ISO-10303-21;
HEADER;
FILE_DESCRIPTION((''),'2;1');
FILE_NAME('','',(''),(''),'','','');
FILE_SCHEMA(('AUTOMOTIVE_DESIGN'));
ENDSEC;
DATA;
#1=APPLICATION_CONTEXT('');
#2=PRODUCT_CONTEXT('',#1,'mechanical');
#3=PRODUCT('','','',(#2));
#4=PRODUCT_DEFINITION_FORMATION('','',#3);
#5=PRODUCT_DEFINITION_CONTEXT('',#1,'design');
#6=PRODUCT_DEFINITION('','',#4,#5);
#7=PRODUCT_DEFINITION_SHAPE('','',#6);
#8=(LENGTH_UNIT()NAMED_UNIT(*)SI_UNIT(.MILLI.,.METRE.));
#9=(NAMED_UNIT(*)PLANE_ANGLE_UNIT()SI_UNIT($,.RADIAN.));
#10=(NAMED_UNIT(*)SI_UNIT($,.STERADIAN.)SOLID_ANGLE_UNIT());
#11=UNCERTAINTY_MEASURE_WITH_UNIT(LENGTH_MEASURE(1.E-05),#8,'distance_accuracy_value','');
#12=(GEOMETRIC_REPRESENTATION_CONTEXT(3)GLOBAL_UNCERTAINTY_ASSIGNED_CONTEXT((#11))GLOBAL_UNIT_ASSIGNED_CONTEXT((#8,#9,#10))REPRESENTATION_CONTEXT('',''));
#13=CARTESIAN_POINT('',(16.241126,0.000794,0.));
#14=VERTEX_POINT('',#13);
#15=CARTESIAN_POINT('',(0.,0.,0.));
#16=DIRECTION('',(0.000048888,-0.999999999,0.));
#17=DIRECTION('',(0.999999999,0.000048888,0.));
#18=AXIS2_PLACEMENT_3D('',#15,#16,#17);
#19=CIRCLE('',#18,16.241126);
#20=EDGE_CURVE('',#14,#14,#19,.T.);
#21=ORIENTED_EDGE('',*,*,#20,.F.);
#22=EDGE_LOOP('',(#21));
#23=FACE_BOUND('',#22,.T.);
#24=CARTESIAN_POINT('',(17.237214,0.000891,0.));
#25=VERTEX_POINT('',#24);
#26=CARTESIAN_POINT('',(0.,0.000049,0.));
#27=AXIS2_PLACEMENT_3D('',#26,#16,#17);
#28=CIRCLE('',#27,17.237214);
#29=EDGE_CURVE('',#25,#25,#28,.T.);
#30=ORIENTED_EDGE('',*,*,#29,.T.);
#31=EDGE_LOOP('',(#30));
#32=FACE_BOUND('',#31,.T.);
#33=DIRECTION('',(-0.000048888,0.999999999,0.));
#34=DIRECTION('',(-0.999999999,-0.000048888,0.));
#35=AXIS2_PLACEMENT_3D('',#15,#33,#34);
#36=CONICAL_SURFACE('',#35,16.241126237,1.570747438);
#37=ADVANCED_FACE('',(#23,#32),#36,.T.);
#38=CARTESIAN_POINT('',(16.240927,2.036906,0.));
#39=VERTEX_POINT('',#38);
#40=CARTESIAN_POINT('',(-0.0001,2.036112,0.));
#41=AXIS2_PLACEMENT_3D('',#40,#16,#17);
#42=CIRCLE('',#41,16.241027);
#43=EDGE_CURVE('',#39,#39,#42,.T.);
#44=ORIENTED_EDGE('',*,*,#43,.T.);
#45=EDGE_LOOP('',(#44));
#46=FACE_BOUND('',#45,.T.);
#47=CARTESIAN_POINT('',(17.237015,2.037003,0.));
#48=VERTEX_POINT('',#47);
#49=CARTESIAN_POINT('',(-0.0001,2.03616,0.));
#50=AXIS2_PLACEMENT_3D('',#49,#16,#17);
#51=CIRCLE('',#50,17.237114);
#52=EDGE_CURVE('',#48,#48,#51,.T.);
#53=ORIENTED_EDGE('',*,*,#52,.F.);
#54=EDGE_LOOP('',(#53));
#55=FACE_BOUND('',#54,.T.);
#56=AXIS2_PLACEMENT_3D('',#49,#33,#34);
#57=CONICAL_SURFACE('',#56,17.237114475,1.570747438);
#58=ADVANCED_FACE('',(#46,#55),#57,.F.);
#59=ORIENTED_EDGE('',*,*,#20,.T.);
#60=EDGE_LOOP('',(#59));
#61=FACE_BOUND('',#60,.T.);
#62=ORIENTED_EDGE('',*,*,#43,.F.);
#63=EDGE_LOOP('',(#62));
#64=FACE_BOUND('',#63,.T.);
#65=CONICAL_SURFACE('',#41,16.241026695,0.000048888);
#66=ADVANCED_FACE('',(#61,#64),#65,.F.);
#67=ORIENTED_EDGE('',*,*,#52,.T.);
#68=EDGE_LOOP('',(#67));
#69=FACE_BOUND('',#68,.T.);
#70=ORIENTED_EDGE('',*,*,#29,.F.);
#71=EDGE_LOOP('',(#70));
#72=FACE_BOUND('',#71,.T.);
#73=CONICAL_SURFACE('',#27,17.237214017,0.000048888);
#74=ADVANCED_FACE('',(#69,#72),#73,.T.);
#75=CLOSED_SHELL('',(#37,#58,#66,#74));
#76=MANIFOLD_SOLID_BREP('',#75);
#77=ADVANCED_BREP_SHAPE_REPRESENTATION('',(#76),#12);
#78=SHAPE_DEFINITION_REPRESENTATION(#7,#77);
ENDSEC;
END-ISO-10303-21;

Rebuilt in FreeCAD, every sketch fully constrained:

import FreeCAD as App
import Part
import Sketcher

V = App.Vector

doc = App.newDocument("Part")
body = doc.addObject("PartDesign::Body", "Body")

sketch1 = body.newObject("Sketcher::SketchObject", "Sketch")
sketch1.AttachmentSupport = (doc.getObject("XY_Plane"), [""])
sketch1.MapMode = "FlatFace"
sketch1.addGeometry([
    Part.LineSegment(V(17.2, 0, 0), V(17.2, 2, 0)),
    Part.LineSegment(V(17.2, 2, 0), V(16.2, 2, 0)),
    Part.LineSegment(V(16.2, 2, 0), V(16.2, 0, 0)),
    Part.LineSegment(V(16.2, 0, 0), V(17.2, 0, 0)),
], False)
sketch1.addGeometry(Part.LineSegment(V(0, 0, 0), V(0, 2, 0)), True)
sketch1.addConstraint([
    Sketcher.Constraint("Coincident", 0, 2, 1, 1),
    Sketcher.Constraint("Coincident", 1, 2, 2, 1),
    Sketcher.Constraint("Coincident", 2, 2, 3, 1),
    Sketcher.Constraint("Coincident", 3, 2, 0, 1),
    Sketcher.Constraint("Coincident", 4, 1, -1, 1),
    Sketcher.Constraint("Perpendicular", 0, 1),
    Sketcher.Constraint("Perpendicular", 1, 2),
    Sketcher.Constraint("Perpendicular", 2, 3),
    Sketcher.Constraint("DistanceX", 1, 2, 2, 2, 0.000199),
    Sketcher.Constraint("Distance", 0, 2.036112),
    Sketcher.Constraint("Distance", 4, 2.03616),
    Sketcher.Constraint("DistanceY", -1, 1, 3, 2, 0.000891),
    Sketcher.Constraint("DistanceX", 2, 2, 0, 2, 0.995889),
    Sketcher.Constraint("DistanceX", -1, 1, 0, 2, 17.237015),
    Sketcher.Constraint("DistanceX", 4, 2, 1, 2, 16.241027),
])
revolution = body.newObject("PartDesign::Revolution", "Revolution")
revolution.Profile = sketch1
revolution.ReferenceAxis = (sketch1, ["Axis0"])
revolution.Angle = 360

doc.recompute()
